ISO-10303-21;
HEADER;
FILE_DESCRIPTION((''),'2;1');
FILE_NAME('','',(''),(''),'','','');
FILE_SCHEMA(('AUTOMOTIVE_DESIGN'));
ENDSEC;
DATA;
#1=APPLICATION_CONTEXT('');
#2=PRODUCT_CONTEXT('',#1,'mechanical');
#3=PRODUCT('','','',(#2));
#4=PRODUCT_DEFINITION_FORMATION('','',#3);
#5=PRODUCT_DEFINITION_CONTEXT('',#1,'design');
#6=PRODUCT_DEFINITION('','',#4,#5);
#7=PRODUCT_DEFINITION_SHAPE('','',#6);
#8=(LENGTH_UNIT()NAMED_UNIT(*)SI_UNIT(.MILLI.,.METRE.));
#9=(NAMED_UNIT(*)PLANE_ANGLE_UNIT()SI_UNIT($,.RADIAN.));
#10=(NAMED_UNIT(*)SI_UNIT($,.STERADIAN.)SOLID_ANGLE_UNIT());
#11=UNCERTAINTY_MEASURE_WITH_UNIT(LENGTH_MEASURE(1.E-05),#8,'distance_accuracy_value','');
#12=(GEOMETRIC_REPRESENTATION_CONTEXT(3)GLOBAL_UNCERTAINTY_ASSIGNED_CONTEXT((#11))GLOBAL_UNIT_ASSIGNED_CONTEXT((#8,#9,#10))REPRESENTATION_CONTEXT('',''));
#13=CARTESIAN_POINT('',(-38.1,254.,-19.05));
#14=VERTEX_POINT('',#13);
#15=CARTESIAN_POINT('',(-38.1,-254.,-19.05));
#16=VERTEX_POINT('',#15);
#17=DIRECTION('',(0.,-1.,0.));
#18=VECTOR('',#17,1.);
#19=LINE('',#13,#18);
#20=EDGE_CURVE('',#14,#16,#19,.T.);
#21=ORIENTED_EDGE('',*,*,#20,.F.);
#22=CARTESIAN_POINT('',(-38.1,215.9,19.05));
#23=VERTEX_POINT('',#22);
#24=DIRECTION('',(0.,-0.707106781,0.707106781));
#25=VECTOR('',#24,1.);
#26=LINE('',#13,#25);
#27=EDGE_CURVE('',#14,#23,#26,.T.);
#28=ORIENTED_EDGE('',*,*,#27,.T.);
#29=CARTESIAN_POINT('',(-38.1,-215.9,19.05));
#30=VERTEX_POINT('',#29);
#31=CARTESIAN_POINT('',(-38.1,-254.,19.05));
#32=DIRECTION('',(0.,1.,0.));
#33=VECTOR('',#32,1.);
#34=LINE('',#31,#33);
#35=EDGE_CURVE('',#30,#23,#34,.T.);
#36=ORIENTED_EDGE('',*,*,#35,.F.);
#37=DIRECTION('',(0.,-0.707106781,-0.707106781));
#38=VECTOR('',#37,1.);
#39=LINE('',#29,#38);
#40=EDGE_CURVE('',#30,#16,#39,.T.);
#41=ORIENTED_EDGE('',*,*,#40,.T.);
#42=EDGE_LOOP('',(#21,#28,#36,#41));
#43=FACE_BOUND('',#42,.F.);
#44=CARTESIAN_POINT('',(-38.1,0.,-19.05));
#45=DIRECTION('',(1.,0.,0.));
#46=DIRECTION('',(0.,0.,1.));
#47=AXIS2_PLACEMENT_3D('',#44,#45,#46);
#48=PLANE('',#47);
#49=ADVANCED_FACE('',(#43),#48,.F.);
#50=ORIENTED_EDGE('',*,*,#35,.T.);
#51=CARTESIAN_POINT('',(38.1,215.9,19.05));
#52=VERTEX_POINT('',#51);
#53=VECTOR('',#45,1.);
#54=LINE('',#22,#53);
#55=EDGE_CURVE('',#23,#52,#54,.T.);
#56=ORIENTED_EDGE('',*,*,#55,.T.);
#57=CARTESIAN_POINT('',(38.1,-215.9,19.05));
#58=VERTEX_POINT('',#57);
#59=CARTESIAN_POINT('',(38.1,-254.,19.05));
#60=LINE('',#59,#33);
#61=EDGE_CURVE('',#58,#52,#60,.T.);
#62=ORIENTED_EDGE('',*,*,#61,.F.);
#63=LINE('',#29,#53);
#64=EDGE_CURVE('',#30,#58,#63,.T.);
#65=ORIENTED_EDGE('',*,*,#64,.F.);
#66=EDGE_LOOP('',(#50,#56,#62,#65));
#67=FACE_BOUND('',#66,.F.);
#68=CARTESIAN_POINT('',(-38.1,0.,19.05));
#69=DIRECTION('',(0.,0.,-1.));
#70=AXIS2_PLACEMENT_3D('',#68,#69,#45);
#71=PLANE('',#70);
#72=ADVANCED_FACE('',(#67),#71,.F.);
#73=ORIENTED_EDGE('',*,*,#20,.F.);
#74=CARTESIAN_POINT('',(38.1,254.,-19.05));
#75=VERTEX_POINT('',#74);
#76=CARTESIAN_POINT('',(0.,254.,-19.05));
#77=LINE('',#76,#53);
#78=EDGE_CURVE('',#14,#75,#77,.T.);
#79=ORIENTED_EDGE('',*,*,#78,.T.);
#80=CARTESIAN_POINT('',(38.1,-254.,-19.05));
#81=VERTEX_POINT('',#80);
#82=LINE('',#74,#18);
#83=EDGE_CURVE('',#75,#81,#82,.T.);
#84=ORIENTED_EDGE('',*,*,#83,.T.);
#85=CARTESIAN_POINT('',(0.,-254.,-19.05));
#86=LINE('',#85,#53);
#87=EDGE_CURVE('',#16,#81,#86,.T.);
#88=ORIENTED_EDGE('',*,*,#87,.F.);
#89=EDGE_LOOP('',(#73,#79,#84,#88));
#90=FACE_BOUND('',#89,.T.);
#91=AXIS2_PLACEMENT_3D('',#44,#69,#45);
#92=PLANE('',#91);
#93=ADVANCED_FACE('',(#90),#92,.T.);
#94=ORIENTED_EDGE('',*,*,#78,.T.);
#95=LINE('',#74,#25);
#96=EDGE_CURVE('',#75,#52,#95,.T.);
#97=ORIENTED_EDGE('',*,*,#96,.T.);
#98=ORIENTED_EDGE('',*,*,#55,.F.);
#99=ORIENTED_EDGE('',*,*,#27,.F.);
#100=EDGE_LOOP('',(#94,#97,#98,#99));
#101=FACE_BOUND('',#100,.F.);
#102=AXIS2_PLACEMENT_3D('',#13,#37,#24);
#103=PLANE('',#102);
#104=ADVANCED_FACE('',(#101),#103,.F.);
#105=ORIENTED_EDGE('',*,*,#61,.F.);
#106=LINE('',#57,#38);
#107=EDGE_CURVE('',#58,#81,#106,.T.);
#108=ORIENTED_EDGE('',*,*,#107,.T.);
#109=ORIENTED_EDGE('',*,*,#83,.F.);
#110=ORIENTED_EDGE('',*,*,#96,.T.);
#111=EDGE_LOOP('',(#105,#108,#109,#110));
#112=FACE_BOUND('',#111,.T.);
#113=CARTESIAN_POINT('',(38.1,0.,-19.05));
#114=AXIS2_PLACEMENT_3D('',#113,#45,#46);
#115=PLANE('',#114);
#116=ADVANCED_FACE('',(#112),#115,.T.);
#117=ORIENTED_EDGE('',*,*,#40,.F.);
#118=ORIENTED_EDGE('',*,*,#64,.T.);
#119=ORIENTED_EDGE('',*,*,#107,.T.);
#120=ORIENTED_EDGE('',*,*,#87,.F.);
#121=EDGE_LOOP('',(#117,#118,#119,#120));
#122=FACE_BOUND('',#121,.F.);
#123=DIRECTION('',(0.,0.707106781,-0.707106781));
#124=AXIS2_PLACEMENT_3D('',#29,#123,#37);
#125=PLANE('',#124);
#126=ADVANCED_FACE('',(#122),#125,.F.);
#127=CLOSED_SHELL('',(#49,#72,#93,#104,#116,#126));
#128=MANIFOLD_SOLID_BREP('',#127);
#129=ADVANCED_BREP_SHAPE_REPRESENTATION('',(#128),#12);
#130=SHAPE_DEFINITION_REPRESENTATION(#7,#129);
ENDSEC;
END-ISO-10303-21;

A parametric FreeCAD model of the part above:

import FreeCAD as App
import Part
import Sketcher

V = App.Vector
Q = App.Units.Quantity

doc = App.newDocument("Part")
body = doc.addObject("PartDesign::Body", "Body")

# Sketch on XZ plane
sketch1 = body.newObject("Sketcher::SketchObject", "Sketch")
sketch1.AttachmentSupport = (doc.getObject("XZ_Plane"), [""])
sketch1.MapMode = "FlatFace"
sketch1.addGeometry(Part.LineSegment(V(-38, 19, 0), V(-38, -19, 0)), False)
sketch1.addGeometry(Part.LineSegment(V(-38, -19, 0), V(38, -19, 0)), False)
sketch1.addGeometry(Part.LineSegment(V(38, -19, 0), V(38, 19, 0)), False)
sketch1.addGeometry(Part.LineSegment(V(38, 19, 0), V(-38, 19, 0)), False)
sketch1.addConstraint(Sketcher.Constraint("Coincident", 0, 2, 1, 1))
sketch1.addConstraint(Sketcher.Constraint("Coincident", 1, 2, 2, 1))
sketch1.addConstraint(Sketcher.Constraint("Coincident", 2, 2, 3, 1))
sketch1.addConstraint(Sketcher.Constraint("Coincident", 3, 2, 0, 1))
sketch1.addConstraint(Sketcher.Constraint("Vertical", 0))
sketch1.addConstraint(Sketcher.Constraint("Horizontal", 1))
sketch1.addConstraint(Sketcher.Constraint("Vertical", 2))
sketch1.addConstraint(Sketcher.Constraint("Horizontal", 3))
sketch1.addConstraint(Sketcher.Constraint("Symmetric", 0, 2, 2, 2, -1, 1))
sketch1.addConstraint(Sketcher.Constraint("DistanceX", 1, 1, 1, 2, Q("3 in")))
sketch1.addConstraint(Sketcher.Constraint("DistanceY", 0, 2, 0, 1, Q("1.5 in")))
pad1 = body.newObject("PartDesign::Pad", "Pad")
pad1.Profile = sketch1
pad1.Type = "TwoLengths"
pad1.Length = Q("10 in")
pad1.Length2 = Q("10 in")

# Sketch on YZ plane
sketch2 = body.newObject("Sketcher::SketchObject", "Sketch001")
sketch2.AttachmentSupport = (doc.getObject("YZ_Plane"), [""])
sketch2.MapMode = "FlatFace"
sketch2.AttachmentOffset = App.Placement(V(0, 0, -1.5 * 25.4), App.Rotation())
sketch2.addGeometry(Part.LineSegment(V(216, 19, 0), V(254, 19, 0)), False)
sketch2.addGeometry(Part.LineSegment(V(254, 19, 0), V(254, -19, 0)), False)
sketch2.addGeometry(Part.LineSegment(V(254, -19, 0), V(216, 19, 0)), False)
sketch2.addGeometry(Part.LineSegment(V(-216, 19, 0), V(-254, -19, 0)), False)
sketch2.addGeometry(Part.LineSegment(V(-254, -19, 0), V(-254, 19, 0)), False)
sketch2.addGeometry(Part.LineSegment(V(-254, 19, 0), V(-216, 19, 0)), False)
sketch2.addConstraint(Sketcher.Constraint("Coincident", 0, 2, 1, 1))
sketch2.addConstraint(Sketcher.Constraint("Coincident", 1, 2, 2, 1))
sketch2.addConstraint(Sketcher.Constraint("Coincident", 2, 2, 0, 1))
sketch2.addConstraint(Sketcher.Constraint("Coincident", 3, 2, 4, 1))
sketch2.addConstraint(Sketcher.Constraint("Coincident", 4, 2, 5, 1))
sketch2.addConstraint(Sketcher.Constraint("Coincident", 5, 2, 3, 1))
sketch2.addConstraint(Sketcher.Constraint("Horizontal", 0))
sketch2.addConstraint(Sketcher.Constraint("Vertical", 1))
sketch2.addConstraint(Sketcher.Constraint("Vertical", 4))
sketch2.addConstraint(Sketcher.Constraint("Horizontal", 5))
sketch2.addConstraint(Sketcher.Constraint("Symmetric", 0, 2, 3, 2, -1, 1))
sketch2.addConstraint(Sketcher.Constraint("Symmetric", 2, 2, 5, 2, -2))
sketch2.addConstraint(Sketcher.Constraint("Perpendicular", 2, 3))
sketch2.addConstraint(Sketcher.Constraint("Horizontal", 1, 2, 3, 2))
sketch2.addConstraint(Sketcher.Constraint("DistanceX", 0, 1, 0, 2, Q("1.5 in")))
sketch2.addConstraint(Sketcher.Constraint("DistanceX", -1, 1, 0, 2, Q("10 in")))
pocket1 = body.newObject("PartDesign::Pocket", "Pocket")
pocket1.Profile = sketch2
pocket1.Type = "ThroughAll"
pocket1.Reversed = True

doc.recompute()
